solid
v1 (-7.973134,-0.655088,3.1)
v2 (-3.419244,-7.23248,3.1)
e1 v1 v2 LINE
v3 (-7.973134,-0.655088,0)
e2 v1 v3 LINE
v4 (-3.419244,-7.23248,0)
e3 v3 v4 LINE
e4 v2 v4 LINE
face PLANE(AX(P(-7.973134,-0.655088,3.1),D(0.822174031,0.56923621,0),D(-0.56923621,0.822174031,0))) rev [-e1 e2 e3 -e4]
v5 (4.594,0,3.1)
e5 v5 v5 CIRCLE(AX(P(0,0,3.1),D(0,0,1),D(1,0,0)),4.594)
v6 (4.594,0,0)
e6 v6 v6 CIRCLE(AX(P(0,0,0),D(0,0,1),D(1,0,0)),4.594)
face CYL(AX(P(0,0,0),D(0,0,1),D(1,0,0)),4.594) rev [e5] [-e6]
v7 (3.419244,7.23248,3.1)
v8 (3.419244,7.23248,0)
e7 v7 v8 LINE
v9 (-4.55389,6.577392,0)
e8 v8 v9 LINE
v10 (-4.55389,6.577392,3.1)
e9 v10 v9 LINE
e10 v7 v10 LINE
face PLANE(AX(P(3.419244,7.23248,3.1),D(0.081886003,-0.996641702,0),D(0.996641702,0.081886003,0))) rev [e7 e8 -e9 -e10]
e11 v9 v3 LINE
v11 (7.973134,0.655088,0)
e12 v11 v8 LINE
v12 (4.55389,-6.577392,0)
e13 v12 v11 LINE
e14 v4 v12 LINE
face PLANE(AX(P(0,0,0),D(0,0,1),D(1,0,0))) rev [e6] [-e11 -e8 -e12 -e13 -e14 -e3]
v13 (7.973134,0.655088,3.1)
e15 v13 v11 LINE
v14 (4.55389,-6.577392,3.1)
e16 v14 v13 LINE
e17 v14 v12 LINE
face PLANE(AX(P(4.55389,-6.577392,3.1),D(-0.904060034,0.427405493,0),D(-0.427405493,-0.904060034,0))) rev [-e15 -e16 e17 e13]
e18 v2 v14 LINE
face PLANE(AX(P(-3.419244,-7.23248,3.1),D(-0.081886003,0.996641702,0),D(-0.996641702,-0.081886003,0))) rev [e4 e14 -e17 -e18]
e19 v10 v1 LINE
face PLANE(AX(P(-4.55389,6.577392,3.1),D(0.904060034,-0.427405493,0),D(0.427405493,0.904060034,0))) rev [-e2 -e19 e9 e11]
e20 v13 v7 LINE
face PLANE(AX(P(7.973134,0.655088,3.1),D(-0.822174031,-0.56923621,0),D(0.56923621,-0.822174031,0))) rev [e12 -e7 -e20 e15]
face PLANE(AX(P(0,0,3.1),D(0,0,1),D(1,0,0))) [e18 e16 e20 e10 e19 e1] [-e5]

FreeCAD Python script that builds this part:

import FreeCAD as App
import Part
import Sketcher
Q = App.Units.Quantity


def add_polygon(sketch, points):
    """Adds a closed chain of lines whose ends are joined by coincident constraints."""
    first, n = sketch.GeometryCount, len(points)
    for a, b in zip(points, points[1:] + points[:1]):
        sketch.addGeometry(Part.LineSegment(App.Vector(*a, 0), App.Vector(*b, 0)), False)
    for i in range(n):
        sketch.addConstraint(Sketcher.Constraint("Coincident", first + i, 2, first + (i + 1) % n, 1))

doc = App.newDocument("Part")
body = doc.addObject("PartDesign::Body", "Body")

sketch1 = body.newObject("Sketcher::SketchObject", "Sketch")
sketch1.AttachmentSupport = (doc.getObject("XY_Plane"), [""])
sketch1.MapMode = "FlatFace"
add_polygon(sketch1, [(-5, 7), (-8, -1), (-3, -7), (5, -7), (8, 1), (3, 7)])
sketch1.addConstraint([
    Sketcher.Constraint("Symmetric", 0, 2, 3, 2, -1, 1),
    Sketcher.Constraint("Symmetric", 1, 2, 4, 2, -1, 1),
    Sketcher.Constraint("Symmetric", 2, 2, 5, 2, -1, 1),
    Sketcher.Constraint("Equal", 0, 1),
    Sketcher.Constraint("Equal", 1, 2),
    Sketcher.Constraint("Distance", 0, Q("8 mm")),
    Sketcher.Constraint("DistanceY", 0, 2, -1, 1, Q("0.655088 mm")),
    Sketcher.Constraint("DistanceY", 1, 2, -1, 1, Q("7.23248 mm")),
    Sketcher.Constraint("DistanceX", -1, 1, 2, 2, Q("4.55389 mm")),
])
pad1 = body.newObject("PartDesign::Pad", "Pad")
pad1.Profile = sketch1
pad1.Length = 3.1

sketch2 = body.newObject("Sketcher::SketchObject", "Sketch001")
sketch2.AttachmentSupport = (doc.getObject("XY_Plane"), [""])
sketch2.MapMode = "FlatFace"
sketch2.AttachmentOffset = App.Placement(App.Vector(0, 0, 3.1), App.Rotation())
sketch2.addGeometry(Part.Circle(App.Vector(0, 0, 0), App.Vector(0, 0, 1), 4.6), False)
sketch2.addConstraint([
    Sketcher.Constraint("Coincident", 0, 3, -1, 1),
    Sketcher.Constraint("Diameter", 0, Q("9.188 mm")),
])
pocket1 = body.newObject("PartDesign::Pocket", "Pocket")
pocket1.Profile = sketch2
pocket1.Length = 3.1

doc.recompute()
